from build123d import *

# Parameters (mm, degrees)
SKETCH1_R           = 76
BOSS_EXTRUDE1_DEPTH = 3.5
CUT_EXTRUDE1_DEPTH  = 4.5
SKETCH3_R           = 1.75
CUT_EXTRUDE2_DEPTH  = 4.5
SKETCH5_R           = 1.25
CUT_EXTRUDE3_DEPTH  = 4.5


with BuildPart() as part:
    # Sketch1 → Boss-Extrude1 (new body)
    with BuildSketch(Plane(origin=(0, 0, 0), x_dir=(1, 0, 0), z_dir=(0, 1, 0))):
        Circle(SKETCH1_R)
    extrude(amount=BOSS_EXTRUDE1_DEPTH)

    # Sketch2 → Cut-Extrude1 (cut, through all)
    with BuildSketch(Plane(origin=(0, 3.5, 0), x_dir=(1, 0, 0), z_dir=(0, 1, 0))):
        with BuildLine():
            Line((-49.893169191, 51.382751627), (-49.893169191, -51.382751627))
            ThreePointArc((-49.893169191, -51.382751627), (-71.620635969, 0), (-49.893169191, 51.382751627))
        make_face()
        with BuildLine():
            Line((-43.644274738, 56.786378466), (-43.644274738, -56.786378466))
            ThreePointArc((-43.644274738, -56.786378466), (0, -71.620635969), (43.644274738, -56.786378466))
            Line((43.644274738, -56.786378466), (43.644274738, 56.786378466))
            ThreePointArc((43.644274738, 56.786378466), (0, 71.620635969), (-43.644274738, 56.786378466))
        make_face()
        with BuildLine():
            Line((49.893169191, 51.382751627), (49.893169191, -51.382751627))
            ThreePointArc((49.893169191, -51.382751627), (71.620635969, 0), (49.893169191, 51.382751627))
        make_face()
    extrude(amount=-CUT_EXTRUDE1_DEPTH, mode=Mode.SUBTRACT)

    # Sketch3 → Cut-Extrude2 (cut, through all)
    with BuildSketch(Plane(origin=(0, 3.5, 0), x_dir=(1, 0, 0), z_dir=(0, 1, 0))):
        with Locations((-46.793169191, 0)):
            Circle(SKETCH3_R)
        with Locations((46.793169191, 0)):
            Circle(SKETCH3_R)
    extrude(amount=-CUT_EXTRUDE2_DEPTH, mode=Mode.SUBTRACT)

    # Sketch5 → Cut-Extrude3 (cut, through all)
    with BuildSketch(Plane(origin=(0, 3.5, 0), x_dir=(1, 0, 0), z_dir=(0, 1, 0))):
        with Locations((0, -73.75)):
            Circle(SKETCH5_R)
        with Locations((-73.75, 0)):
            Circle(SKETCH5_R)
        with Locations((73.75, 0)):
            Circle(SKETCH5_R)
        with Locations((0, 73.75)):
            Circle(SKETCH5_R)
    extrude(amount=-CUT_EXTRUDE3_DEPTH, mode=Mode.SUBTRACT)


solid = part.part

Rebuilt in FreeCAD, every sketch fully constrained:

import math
import FreeCAD as App
import Part
import Sketcher

V = App.Vector
Q = App.Units.Quantity

doc = App.newDocument("Part")
body = doc.addObject("PartDesign::Body", "Body")

# Sketch on XZ plane
sketch1 = doc.addObject("Sketcher::SketchObject", "Sketch")
body.addObject(sketch1)
sketch1.AttachmentSupport = (doc.XZ_Plane, [""])
sketch1.MapMode = "FlatFace"
sketch1.addGeometry(Part.Circle(V(0, 0, 0), V(0, 0, 1), 76), False)
sketch1.addConstraint([
    Sketcher.Constraint("Coincident", 0, 3, -1, 1),
    Sketcher.Constraint("Diameter", 0, Q("152 mm")),
])
pad1 = doc.addObject("PartDesign::Pad", "Pad")
body.addObject(pad1)
pad1.Profile = sketch1
pad1.Length = 3.5
pad1.Reversed = True

# Sketch on XZ plane
sketch2 = doc.addObject("Sketcher::SketchObject", "Sketch001")
body.addObject(sketch2)
sketch2.AttachmentSupport = (doc.XZ_Plane, [""])
sketch2.MapMode = "FlatFace"
sketch2.AttachmentOffset = App.Placement(V(0, 0, -3.5), App.Rotation())
sketch2.addGeometry([
    Part.LineSegment(V(-49.893169, 51.382752, 0), V(-49.893169, -51.382752, 0)),  # 0
    Part.ArcOfCircle(Part.Circle(V(0, 0, 0), V(0, 0, 1), 71.620636), math.radians(134.157345), math.radians(225.842655)),  # 1
    Part.LineSegment(V(-43.644275, -56.786378, 0), V(-43.644275, 56.786378, 0)),  # 2
    Part.ArcOfCircle(Part.Circle(V(0, 0, 0), V(0, 0, 1), 71.620636), math.radians(52.455221), math.radians(127.544779)),  # 3
    Part.LineSegment(V(43.644275, 56.786378, 0), V(43.644275, -56.786378, 0)),  # 4
    Part.ArcOfCircle(Part.Circle(V(0, 0, 0), V(0, 0, 1), 71.620636), math.radians(-127.544779), math.radians(-52.455221)),  # 5
    Part.LineSegment(V(49.893169, -51.382752, 0), V(49.893169, 51.382752, 0)),  # 6
    Part.ArcOfCircle(Part.Circle(V(0, 0, 0), V(0, 0, 1), 71.620636), math.radians(-45.842655), math.radians(45.842655)),  # 7
], False)
sketch2.addConstraint([
    Sketcher.Constraint("Coincident", 0, 1, 1, 1),
    Sketcher.Constraint("Coincident", 1, 2, 0, 2),
    Sketcher.Constraint("Coincident", 2, 2, 3, 2),
    Sketcher.Constraint("Coincident", 3, 1, 4, 1),
    Sketcher.Constraint("Coincident", 4, 2, 5, 2),
    Sketcher.Constraint("Coincident", 5, 1, 2, 1),
    Sketcher.Constraint("Coincident", 6, 1, 7, 1),
    Sketcher.Constraint("Coincident", 7, 2, 6, 2),
    Sketcher.Constraint("Vertical", 0),
    Sketcher.Constraint("Vertical", 2),
    Sketcher.Constraint("Vertical", 4),
    Sketcher.Constraint("Vertical", 6),
    Sketcher.Constraint("Coincident", 1, 3, -1, 1),
    Sketcher.Constraint("Coincident", 3, 3, -1, 1),
    Sketcher.Constraint("Coincident", 5, 3, -1, 1),
    Sketcher.Constraint("Coincident", 7, 3, -1, 1),
    Sketcher.Constraint("Equal", 1, 3),
    Sketcher.Constraint("Equal", 3, 5),
    Sketcher.Constraint("Equal", 5, 7),
    Sketcher.Constraint("Horizontal", 2, 2, 3, 1),
    Sketcher.Constraint("Horizontal", 1, 2, 6, 1),
    Sketcher.Constraint("Radius", 1, Q("71.620636 mm")),
    Sketcher.Constraint("DistanceY", 0, 2, 0, 1, Q("102.765503 mm")),
    Sketcher.Constraint("DistanceY", 2, 1, 2, 2, Q("113.572757 mm")),
])
pocket1 = doc.addObject("PartDesign::Pocket", "Pocket")
body.addObject(pocket1)
pocket1.Profile = sketch2
pocket1.Type = "ThroughAll"
pocket1.Reversed = True

# Sketch on XZ plane
sketch3 = doc.addObject("Sketcher::SketchObject", "Sketch002")
body.addObject(sketch3)
sketch3.AttachmentSupport = (doc.XZ_Plane, [""])
sketch3.MapMode = "FlatFace"
sketch3.AttachmentOffset = App.Placement(V(0, 0, -3.5), App.Rotation())
sketch3.addGeometry([
    Part.Circle(V(-46.793169, 0, 0), V(0, 0, 1), 1.75),
    Part.Circle(V(46.793169, 0, 0), V(0, 0, 1), 1.75),
], False)
sketch3.addConstraint([
    Sketcher.Constraint("Equal", 0, 1),
    Sketcher.Constraint("Symmetric", 0, 3, 1, 3, -1, 1),
    Sketcher.Constraint("PointOnObject", 0, 3, -1),
    Sketcher.Constraint("Diameter", 0, Q("3.5 mm")),
    Sketcher.Constraint("DistanceX", 0, 3, -1, 1, Q("46.793169 mm")),
])
pocket2 = doc.addObject("PartDesign::Pocket", "Pocket001")
body.addObject(pocket2)
pocket2.Profile = sketch3
pocket2.Type = "ThroughAll"
pocket2.Reversed = True

# Sketch on XZ plane
sketch4 = doc.addObject("Sketcher::SketchObject", "Sketch003")
body.addObject(sketch4)
sketch4.AttachmentSupport = (doc.XZ_Plane, [""])
sketch4.MapMode = "FlatFace"
sketch4.AttachmentOffset = App.Placement(V(0, 0, -3.5), App.Rotation())
sketch4.addGeometry([
    Part.Circle(V(0, 73.75, 0), V(0, 0, 1), 1.25),
    Part.Circle(V(-73.75, 0, 0), V(0, 0, 1), 1.25),
    Part.Circle(V(73.75, 0, 0), V(0, 0, 1), 1.25),
    Part.Circle(V(0, -73.75, 0), V(0, 0, 1), 1.25),
], False)
sketch4.addConstraint([
    Sketcher.Constraint("Equal", 0, 1),
    Sketcher.Constraint("Equal", 1, 2),
    Sketcher.Constraint("Equal", 2, 3),
    Sketcher.Constraint("Symmetric", 1, 3, 2, 3, -1, 1),
    Sketcher.Constraint("Symmetric", 0, 3, 3, 3, -1, 1),
    Sketcher.Constraint("PointOnObject", 0, 3, -2),
    Sketcher.Constraint("PointOnObject", 1, 3, -1),
    Sketcher.Constraint("Diameter", 0, Q("2.5 mm")),
    Sketcher.Constraint("DistanceX", 1, 3, 2, 3, Q("147.5 mm")),
    Sketcher.Constraint("DistanceY", 3, 3, 0, 3, Q("147.5 mm")),
])
pocket3 = doc.addObject("PartDesign::Pocket", "Pocket002")
body.addObject(pocket3)
pocket3.Profile = sketch4
pocket3.Type = "ThroughAll"
pocket3.Reversed = True

doc.recompute()
